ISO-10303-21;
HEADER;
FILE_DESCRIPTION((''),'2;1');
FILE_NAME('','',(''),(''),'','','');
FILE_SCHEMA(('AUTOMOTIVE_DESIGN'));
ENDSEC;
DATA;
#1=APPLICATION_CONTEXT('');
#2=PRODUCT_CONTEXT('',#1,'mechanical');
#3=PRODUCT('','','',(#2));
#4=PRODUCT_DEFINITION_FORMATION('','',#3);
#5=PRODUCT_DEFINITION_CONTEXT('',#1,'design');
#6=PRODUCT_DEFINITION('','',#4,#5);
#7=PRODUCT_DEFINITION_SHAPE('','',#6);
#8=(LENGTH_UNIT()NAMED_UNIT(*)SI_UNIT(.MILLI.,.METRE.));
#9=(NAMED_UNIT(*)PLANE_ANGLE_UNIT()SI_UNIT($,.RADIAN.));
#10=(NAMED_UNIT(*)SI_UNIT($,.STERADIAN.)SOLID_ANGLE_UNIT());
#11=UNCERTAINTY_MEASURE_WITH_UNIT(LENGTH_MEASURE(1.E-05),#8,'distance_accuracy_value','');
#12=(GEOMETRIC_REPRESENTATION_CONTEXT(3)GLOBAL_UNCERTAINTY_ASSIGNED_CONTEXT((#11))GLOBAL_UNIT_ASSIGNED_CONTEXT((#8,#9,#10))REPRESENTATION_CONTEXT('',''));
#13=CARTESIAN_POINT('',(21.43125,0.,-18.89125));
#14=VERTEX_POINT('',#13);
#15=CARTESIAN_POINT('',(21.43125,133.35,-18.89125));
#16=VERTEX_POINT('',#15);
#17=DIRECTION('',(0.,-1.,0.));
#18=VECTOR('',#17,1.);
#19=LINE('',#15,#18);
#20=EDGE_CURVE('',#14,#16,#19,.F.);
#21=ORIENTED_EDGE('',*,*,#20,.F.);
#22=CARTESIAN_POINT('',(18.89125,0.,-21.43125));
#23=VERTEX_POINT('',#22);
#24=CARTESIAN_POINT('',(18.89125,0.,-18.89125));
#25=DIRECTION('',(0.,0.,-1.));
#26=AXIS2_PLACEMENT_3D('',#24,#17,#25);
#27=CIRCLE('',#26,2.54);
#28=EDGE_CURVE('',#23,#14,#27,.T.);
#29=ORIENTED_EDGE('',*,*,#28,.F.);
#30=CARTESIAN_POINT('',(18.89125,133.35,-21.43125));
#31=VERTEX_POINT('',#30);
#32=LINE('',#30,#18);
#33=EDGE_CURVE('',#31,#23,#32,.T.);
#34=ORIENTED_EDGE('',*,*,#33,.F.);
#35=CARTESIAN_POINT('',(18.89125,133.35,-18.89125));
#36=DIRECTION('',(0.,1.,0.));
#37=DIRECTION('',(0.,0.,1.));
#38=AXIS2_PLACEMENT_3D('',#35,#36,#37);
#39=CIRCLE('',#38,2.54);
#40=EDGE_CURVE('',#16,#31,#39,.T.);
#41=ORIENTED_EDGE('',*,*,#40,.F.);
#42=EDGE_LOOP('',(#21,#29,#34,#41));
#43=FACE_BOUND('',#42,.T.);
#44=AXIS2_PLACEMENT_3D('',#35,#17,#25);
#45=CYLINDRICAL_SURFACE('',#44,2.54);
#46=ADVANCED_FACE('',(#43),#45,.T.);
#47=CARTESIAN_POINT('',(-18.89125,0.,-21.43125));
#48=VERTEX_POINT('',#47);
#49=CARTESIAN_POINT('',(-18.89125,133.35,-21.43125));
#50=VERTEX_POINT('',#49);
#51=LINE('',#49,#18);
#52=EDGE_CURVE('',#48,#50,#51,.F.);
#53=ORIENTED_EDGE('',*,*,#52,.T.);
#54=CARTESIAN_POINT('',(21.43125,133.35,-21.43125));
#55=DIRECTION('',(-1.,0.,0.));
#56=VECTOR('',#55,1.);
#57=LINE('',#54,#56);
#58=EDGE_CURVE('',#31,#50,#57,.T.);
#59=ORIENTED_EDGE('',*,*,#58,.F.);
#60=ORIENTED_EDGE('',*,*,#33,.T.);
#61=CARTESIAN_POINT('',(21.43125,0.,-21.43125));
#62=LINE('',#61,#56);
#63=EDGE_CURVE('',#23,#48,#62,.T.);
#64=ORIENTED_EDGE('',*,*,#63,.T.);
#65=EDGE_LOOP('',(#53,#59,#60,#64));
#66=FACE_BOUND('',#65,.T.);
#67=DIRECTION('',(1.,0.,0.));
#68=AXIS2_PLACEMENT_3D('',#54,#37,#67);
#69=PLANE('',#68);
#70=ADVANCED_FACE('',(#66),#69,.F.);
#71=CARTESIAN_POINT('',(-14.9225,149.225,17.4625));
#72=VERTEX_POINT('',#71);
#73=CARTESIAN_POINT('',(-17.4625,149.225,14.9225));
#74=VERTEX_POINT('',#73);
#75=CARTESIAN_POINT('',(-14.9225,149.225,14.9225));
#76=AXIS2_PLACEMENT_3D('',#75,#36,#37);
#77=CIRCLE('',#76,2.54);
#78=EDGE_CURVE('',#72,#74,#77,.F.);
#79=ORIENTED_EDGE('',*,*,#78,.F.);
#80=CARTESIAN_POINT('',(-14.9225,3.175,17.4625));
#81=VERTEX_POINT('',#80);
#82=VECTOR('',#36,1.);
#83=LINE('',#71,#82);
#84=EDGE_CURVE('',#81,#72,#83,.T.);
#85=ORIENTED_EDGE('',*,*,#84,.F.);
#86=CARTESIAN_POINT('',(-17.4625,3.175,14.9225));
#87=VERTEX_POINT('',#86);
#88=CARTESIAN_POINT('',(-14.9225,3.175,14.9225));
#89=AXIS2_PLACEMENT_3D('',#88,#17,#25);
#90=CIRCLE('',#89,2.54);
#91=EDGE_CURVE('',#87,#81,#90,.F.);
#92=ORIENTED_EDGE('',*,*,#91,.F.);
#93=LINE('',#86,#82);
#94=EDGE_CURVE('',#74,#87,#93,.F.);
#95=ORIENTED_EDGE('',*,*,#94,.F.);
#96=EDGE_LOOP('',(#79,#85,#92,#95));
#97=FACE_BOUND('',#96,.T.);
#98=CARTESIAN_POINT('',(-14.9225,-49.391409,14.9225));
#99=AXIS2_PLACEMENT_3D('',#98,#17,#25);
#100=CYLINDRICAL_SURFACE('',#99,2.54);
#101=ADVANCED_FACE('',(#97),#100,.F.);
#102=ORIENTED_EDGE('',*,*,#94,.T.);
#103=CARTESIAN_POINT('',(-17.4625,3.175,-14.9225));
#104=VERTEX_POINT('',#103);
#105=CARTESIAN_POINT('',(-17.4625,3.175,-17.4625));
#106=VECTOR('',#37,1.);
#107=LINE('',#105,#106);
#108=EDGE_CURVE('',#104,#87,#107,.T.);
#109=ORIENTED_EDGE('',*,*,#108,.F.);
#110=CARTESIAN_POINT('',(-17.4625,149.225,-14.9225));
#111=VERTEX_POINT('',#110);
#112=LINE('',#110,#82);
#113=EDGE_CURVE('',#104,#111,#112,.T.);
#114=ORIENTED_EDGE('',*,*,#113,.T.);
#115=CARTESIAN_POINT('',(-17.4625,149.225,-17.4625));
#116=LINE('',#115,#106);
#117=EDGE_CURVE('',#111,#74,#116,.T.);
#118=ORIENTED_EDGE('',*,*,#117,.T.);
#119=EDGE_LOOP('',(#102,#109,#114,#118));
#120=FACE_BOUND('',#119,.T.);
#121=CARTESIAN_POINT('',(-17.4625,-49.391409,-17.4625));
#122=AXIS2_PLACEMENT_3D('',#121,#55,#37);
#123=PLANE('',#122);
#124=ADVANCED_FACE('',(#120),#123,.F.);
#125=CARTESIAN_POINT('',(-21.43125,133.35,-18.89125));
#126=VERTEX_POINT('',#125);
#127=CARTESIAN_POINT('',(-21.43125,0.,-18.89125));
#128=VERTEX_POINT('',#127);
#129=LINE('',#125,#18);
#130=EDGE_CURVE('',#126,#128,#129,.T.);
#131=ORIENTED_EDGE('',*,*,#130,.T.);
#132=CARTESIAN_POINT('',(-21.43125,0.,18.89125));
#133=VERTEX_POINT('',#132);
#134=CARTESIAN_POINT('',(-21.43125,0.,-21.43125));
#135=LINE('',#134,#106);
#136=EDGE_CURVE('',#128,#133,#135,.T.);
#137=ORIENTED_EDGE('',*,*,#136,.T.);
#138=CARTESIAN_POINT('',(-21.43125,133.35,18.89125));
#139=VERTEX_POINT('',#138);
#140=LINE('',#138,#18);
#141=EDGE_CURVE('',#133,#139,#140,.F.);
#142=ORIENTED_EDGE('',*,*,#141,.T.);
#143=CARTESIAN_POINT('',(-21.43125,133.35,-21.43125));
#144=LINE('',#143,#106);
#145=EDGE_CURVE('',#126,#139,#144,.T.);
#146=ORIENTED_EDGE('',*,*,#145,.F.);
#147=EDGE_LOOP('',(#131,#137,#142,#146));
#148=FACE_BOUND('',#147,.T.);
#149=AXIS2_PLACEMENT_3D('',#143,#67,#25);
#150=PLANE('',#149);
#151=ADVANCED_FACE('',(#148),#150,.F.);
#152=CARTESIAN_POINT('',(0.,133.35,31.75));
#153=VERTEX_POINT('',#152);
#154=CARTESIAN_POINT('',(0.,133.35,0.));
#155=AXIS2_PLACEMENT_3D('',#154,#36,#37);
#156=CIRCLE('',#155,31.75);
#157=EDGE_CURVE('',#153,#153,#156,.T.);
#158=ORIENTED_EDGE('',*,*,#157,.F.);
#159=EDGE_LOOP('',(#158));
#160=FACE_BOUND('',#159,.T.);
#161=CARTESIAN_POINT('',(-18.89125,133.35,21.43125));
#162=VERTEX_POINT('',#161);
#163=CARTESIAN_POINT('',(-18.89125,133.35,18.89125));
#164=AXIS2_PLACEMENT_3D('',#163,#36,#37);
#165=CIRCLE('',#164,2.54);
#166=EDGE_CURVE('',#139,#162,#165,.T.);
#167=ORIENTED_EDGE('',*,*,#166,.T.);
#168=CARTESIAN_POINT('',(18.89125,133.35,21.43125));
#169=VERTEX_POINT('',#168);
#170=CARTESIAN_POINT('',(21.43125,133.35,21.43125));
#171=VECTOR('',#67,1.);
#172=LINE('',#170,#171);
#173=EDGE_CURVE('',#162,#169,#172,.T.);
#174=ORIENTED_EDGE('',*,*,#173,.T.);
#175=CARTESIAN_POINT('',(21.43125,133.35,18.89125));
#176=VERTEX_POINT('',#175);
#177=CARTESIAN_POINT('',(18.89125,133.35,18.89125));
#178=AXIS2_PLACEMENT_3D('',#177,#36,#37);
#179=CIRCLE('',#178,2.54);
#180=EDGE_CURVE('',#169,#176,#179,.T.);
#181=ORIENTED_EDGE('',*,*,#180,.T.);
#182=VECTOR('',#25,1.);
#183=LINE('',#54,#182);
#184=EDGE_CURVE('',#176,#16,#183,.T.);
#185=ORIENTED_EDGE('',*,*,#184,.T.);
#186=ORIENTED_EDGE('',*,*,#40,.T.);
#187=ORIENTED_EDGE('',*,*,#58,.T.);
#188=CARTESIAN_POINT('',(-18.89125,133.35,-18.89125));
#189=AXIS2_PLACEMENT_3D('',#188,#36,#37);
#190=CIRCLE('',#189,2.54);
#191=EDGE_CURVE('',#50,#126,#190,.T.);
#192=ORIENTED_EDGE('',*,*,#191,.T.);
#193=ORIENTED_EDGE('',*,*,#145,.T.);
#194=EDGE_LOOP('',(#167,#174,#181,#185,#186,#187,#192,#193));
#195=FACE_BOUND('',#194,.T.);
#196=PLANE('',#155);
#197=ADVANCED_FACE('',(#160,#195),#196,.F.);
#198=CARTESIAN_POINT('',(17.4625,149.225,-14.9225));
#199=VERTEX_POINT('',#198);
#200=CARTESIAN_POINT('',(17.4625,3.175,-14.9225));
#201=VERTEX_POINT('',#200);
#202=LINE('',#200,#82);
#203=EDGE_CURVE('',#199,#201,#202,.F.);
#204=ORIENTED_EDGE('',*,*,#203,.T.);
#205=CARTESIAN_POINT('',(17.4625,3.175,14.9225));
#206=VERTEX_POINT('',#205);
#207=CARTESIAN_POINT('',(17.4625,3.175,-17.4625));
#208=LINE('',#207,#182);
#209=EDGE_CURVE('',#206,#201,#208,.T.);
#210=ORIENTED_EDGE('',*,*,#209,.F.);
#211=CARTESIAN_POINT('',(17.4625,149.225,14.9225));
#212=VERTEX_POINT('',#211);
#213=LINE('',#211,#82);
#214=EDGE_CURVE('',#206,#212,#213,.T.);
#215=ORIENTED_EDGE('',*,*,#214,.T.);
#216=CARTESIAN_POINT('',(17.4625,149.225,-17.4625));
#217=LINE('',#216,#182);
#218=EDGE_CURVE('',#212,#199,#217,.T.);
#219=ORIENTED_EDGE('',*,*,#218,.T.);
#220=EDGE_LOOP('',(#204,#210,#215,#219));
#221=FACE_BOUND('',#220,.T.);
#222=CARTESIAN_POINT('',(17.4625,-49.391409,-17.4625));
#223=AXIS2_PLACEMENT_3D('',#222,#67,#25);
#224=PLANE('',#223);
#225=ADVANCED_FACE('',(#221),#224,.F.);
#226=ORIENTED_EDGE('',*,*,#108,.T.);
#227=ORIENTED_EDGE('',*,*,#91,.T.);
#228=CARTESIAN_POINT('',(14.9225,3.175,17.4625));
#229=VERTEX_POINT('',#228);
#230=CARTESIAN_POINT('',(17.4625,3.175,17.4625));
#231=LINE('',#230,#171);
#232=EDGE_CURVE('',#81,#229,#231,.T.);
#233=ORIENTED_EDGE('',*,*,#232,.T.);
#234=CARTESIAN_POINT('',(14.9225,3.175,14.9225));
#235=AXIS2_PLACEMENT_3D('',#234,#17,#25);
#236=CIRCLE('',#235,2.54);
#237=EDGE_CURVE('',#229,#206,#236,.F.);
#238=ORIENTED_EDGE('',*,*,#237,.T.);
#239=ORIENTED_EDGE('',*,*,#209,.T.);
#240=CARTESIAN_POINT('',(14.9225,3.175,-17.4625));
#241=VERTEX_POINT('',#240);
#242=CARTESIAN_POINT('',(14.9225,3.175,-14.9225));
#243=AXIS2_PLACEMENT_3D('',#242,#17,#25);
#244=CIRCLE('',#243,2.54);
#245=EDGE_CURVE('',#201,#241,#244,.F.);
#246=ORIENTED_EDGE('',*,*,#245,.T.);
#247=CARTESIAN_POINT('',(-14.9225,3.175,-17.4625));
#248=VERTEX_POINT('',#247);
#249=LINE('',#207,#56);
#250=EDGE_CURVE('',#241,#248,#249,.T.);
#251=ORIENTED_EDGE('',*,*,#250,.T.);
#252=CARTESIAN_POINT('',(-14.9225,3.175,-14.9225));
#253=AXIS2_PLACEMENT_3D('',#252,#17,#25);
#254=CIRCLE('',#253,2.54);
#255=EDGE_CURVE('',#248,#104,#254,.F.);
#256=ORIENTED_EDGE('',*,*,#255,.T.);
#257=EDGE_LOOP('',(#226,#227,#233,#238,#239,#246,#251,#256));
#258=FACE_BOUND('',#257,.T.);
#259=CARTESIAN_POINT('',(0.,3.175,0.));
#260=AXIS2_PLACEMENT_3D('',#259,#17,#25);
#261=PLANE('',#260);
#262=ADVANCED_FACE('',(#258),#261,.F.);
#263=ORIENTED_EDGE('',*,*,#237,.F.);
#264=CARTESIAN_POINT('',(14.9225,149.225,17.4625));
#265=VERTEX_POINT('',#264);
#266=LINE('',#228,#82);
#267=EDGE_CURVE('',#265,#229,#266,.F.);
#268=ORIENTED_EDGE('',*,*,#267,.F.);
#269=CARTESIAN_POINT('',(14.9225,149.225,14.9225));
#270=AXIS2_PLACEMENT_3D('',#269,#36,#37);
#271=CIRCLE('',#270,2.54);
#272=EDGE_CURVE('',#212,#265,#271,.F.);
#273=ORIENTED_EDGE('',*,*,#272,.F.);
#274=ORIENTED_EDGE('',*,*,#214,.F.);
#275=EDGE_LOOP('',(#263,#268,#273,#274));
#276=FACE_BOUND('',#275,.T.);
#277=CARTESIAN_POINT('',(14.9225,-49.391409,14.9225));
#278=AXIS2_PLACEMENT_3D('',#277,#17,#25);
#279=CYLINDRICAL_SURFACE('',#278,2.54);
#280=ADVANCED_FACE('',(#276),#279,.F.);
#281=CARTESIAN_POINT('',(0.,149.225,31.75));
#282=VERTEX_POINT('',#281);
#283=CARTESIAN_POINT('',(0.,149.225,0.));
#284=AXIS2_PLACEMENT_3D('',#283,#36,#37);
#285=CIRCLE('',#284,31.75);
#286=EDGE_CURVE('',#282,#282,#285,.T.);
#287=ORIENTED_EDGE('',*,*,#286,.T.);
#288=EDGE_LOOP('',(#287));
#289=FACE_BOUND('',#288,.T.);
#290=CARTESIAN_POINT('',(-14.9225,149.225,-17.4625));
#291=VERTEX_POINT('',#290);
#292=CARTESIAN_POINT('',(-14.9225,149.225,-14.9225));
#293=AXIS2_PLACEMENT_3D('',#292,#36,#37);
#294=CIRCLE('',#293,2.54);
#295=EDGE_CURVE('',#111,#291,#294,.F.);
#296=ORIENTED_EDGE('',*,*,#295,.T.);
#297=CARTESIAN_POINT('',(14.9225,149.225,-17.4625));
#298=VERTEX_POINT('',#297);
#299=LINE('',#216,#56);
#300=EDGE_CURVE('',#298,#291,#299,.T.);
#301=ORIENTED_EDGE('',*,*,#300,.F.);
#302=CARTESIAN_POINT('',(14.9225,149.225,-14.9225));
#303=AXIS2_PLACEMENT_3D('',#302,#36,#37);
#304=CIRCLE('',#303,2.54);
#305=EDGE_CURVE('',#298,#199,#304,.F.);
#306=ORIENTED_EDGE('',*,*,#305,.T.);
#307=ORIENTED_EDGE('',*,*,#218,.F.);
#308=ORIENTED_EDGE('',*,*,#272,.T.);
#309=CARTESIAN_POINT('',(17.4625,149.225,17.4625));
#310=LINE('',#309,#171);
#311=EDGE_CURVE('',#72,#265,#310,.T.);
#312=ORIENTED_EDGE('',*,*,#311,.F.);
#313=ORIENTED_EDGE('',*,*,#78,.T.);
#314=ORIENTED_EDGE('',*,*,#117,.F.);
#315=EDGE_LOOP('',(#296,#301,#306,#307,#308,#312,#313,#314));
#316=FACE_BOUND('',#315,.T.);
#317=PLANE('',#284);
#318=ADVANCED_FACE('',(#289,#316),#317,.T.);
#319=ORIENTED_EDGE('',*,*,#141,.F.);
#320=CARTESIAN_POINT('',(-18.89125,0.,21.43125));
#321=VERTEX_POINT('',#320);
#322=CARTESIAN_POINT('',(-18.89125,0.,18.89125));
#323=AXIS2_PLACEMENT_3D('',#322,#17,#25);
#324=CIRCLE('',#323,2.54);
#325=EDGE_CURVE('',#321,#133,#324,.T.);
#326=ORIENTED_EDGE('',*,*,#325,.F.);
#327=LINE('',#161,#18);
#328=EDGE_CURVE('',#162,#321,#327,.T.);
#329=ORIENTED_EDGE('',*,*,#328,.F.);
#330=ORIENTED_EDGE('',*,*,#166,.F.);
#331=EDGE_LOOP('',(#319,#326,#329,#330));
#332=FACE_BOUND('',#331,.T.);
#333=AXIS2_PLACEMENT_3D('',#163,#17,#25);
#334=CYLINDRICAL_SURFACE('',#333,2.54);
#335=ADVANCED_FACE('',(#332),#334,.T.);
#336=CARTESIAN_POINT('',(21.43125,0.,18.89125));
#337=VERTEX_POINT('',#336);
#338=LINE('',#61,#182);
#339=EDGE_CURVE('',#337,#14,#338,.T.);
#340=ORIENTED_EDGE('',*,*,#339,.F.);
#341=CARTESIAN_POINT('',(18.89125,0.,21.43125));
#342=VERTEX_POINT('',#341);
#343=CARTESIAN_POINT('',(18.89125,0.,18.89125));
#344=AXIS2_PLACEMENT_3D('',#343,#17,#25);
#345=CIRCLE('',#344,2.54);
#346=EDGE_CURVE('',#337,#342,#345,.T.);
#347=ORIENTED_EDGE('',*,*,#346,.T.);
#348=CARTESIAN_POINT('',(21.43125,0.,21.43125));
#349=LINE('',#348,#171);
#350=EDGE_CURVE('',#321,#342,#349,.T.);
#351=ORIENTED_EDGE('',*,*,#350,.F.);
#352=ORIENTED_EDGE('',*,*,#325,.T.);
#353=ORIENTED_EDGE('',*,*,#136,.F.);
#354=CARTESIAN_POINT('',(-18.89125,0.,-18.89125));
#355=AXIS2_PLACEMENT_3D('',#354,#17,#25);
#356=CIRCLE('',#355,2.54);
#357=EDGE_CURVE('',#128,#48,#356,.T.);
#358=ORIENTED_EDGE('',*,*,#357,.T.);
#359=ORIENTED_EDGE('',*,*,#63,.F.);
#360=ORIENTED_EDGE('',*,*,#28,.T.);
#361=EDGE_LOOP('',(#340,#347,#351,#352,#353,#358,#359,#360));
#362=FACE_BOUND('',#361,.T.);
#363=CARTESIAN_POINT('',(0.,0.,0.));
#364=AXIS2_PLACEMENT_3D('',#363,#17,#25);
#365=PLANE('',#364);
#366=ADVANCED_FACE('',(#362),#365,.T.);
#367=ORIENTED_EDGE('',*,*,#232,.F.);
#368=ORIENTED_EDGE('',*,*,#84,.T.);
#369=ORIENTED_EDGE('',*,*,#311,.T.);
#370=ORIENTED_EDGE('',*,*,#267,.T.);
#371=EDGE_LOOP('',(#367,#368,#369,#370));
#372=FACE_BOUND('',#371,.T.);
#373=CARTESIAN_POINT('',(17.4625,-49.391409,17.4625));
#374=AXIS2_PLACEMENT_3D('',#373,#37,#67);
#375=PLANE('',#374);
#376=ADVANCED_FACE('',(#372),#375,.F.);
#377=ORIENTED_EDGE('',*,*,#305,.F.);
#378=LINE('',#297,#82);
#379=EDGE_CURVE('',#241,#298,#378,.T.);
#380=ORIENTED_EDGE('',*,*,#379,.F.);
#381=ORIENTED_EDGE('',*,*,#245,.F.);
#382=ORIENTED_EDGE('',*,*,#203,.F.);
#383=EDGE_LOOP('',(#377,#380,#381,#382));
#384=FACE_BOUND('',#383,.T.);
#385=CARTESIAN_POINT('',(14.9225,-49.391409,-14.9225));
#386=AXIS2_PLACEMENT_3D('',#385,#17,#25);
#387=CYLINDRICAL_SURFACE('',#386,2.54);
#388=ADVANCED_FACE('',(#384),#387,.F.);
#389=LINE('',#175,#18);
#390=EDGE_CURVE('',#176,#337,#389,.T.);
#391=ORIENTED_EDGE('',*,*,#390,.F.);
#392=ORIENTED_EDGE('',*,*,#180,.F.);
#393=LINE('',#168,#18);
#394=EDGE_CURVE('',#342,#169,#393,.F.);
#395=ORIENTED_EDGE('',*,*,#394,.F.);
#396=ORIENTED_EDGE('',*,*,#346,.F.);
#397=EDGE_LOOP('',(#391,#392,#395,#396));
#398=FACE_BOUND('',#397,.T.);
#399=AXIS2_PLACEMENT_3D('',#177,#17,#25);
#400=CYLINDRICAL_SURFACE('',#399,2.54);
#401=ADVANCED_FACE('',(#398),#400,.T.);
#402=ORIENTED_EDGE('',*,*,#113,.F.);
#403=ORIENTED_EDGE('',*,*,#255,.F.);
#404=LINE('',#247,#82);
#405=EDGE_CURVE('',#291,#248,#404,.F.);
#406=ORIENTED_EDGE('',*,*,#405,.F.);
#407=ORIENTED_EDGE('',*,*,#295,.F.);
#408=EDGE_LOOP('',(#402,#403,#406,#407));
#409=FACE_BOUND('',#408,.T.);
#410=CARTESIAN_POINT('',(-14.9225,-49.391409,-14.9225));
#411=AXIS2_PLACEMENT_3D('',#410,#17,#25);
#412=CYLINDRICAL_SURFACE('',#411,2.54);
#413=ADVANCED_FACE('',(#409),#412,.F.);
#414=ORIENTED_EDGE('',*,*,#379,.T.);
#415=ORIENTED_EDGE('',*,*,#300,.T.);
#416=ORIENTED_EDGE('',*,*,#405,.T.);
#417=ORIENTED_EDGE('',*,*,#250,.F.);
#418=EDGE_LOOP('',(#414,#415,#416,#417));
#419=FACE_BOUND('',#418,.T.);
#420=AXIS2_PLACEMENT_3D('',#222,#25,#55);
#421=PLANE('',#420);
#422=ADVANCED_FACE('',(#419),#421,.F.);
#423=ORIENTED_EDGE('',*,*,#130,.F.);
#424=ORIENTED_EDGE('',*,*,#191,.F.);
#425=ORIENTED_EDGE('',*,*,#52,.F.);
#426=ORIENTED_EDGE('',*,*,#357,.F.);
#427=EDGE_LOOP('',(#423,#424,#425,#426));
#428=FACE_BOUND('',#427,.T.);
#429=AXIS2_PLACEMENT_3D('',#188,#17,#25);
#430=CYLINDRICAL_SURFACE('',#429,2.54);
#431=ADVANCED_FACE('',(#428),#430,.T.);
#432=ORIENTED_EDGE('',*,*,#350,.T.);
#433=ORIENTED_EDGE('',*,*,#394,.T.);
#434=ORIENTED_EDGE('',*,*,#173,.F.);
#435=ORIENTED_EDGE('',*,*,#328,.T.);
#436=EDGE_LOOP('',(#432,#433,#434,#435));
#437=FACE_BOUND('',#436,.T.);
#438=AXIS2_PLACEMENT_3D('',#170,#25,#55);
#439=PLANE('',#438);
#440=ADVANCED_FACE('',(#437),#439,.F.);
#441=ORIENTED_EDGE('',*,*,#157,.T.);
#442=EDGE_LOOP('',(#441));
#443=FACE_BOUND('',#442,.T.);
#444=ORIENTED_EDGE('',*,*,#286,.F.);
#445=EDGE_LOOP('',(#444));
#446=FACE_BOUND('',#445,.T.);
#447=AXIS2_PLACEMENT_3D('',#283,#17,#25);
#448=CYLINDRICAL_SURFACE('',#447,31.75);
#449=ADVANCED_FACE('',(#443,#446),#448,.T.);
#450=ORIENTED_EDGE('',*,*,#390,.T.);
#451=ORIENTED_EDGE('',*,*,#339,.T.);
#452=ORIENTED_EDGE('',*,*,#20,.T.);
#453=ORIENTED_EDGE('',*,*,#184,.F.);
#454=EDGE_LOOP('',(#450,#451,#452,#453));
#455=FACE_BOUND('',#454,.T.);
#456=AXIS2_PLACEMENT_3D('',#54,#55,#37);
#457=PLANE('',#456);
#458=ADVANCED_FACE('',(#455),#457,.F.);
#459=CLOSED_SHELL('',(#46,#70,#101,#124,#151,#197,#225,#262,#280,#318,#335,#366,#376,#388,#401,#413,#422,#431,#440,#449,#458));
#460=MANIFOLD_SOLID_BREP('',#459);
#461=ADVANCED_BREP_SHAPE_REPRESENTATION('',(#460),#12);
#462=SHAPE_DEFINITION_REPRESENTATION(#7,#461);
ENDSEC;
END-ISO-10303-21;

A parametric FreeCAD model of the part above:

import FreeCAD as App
import Part
import Sketcher
from FreeCAD import Vector
Q = App.Units.Quantity


def edges_at(feature, points):
    """Names of the edges that pass closest to the given points."""
    edges = feature.Shape.Edges
    near = lambda p: min(range(len(edges)), key=lambda i: edges[i].distToShape(Part.Vertex(*p))[0])
    return sorted({f"Edge{near(p) + 1}" for p in points})


def add_polygon(sketch, points):
    """Adds a closed chain of lines whose ends are joined by coincident constraints."""
    first, n = sketch.GeometryCount, len(points)
    for a, b in zip(points, points[1:] + points[:1]):
        sketch.addGeometry(Part.LineSegment(App.Vector(*a, 0), App.Vector(*b, 0)), False)
    for i in range(n):
        sketch.addConstraint(Sketcher.Constraint("Coincident", first + i, 2, first + (i + 1) % n, 1))

doc = App.newDocument("Part")
body = doc.addObject("PartDesign::Body", "Body")

sketch1 = doc.addObject("Sketcher::SketchObject", "Sketch")
body.addObject(sketch1)
sketch1.AttachmentSupport = (doc.XZ_Plane, [""])
sketch1.MapMode = "FlatFace"
add_polygon(sketch1, [(-21, -21), (-21, 21), (21, 21), (21, -21)])
sketch1.addConstraint([
    Sketcher.Constraint("Vertical", 0),
    Sketcher.Constraint("Horizontal", 1),
    Sketcher.Constraint("Vertical", 2),
    Sketcher.Constraint("Horizontal", 3),
    Sketcher.Constraint("Symmetric", 0, 2, 2, 2, -1, 1),
    Sketcher.Constraint("Equal", 3, 0),
    Sketcher.Constraint("DistanceX", 1, 1, 1, 2, Q("1.6875 in")),
])
pad1 = doc.addObject("PartDesign::Pad", "Pad")
body.addObject(pad1)
pad1.Profile = sketch1
pad1.Length = Q("5.25 in")
pad1.Reversed = True

sketch2 = doc.addObject("Sketcher::SketchObject", "Sketch001")
body.addObject(sketch2)
sketch2.AttachmentSupport = (doc.XZ_Plane, [""])
sketch2.MapMode = "FlatFace"
sketch2.AttachmentOffset = App.Placement(Vector(0, 0, -5.25 * 25.4), App.Rotation())
sketch2.addGeometry(Part.Circle(Vector(0, 0, 0), Vector(0, 0, 1), 32), False)
sketch2.addConstraint([
    Sketcher.Constraint("Coincident", 0, 3, -1, 1),
    Sketcher.Constraint("Diameter", 0, Q("2.5 in")),
])
pad2 = doc.addObject("PartDesign::Pad", "Pad001")
body.addObject(pad2)
pad2.Profile = sketch2
pad2.Length = Q("0.625 in")
pad2.Reversed = True

sketch3 = doc.addObject("Sketcher::SketchObject", "Sketch002")
body.addObject(sketch3)
sketch3.AttachmentSupport = (doc.XZ_Plane, [""])
sketch3.MapMode = "FlatFace"
sketch3.AttachmentOffset = App.Placement(Vector(0, 0, -5.875 * 25.4), App.Rotation())
add_polygon(sketch3, [(-17, -17), (-17, 17), (17, 17), (17, -17)])
sketch3.addConstraint([
    Sketcher.Constraint("Vertical", 0),
    Sketcher.Constraint("Horizontal", 1),
    Sketcher.Constraint("Vertical", 2),
    Sketcher.Constraint("Horizontal", 3),
    Sketcher.Constraint("Symmetric", 0, 2, 2, 2, -1, 1),
    Sketcher.Constraint("Equal", 3, 0),
    Sketcher.Constraint("DistanceX", 1, 1, 1, 2, Q("1.375 in")),
])
pocket1 = doc.addObject("PartDesign::Pocket", "Pocket")
body.addObject(pocket1)
pocket1.Profile = sketch3
pocket1.Length = Q("5.75 in")
pocket1.Reversed = True
doc.recompute()

fillet = doc.addObject("PartDesign::Fillet", "Fillet")
body.addObject(fillet)
fillet.Base = (pocket1, edges_at(pocket1, [
    (17.462, 76.2, 17.462),
    (17.462, 76.2, -17.462),
    (-17.462, 76.2, -17.462),
    (-17.462, 76.2, 17.462),
    (-21.431, 66.675, -21.431),
    (21.431, 66.675, -21.431),
    (21.431, 66.675, 21.431),
    (-21.431, 66.675, 21.431),
]))
fillet.Radius = Q("0.1 in")

doc.recompute()
